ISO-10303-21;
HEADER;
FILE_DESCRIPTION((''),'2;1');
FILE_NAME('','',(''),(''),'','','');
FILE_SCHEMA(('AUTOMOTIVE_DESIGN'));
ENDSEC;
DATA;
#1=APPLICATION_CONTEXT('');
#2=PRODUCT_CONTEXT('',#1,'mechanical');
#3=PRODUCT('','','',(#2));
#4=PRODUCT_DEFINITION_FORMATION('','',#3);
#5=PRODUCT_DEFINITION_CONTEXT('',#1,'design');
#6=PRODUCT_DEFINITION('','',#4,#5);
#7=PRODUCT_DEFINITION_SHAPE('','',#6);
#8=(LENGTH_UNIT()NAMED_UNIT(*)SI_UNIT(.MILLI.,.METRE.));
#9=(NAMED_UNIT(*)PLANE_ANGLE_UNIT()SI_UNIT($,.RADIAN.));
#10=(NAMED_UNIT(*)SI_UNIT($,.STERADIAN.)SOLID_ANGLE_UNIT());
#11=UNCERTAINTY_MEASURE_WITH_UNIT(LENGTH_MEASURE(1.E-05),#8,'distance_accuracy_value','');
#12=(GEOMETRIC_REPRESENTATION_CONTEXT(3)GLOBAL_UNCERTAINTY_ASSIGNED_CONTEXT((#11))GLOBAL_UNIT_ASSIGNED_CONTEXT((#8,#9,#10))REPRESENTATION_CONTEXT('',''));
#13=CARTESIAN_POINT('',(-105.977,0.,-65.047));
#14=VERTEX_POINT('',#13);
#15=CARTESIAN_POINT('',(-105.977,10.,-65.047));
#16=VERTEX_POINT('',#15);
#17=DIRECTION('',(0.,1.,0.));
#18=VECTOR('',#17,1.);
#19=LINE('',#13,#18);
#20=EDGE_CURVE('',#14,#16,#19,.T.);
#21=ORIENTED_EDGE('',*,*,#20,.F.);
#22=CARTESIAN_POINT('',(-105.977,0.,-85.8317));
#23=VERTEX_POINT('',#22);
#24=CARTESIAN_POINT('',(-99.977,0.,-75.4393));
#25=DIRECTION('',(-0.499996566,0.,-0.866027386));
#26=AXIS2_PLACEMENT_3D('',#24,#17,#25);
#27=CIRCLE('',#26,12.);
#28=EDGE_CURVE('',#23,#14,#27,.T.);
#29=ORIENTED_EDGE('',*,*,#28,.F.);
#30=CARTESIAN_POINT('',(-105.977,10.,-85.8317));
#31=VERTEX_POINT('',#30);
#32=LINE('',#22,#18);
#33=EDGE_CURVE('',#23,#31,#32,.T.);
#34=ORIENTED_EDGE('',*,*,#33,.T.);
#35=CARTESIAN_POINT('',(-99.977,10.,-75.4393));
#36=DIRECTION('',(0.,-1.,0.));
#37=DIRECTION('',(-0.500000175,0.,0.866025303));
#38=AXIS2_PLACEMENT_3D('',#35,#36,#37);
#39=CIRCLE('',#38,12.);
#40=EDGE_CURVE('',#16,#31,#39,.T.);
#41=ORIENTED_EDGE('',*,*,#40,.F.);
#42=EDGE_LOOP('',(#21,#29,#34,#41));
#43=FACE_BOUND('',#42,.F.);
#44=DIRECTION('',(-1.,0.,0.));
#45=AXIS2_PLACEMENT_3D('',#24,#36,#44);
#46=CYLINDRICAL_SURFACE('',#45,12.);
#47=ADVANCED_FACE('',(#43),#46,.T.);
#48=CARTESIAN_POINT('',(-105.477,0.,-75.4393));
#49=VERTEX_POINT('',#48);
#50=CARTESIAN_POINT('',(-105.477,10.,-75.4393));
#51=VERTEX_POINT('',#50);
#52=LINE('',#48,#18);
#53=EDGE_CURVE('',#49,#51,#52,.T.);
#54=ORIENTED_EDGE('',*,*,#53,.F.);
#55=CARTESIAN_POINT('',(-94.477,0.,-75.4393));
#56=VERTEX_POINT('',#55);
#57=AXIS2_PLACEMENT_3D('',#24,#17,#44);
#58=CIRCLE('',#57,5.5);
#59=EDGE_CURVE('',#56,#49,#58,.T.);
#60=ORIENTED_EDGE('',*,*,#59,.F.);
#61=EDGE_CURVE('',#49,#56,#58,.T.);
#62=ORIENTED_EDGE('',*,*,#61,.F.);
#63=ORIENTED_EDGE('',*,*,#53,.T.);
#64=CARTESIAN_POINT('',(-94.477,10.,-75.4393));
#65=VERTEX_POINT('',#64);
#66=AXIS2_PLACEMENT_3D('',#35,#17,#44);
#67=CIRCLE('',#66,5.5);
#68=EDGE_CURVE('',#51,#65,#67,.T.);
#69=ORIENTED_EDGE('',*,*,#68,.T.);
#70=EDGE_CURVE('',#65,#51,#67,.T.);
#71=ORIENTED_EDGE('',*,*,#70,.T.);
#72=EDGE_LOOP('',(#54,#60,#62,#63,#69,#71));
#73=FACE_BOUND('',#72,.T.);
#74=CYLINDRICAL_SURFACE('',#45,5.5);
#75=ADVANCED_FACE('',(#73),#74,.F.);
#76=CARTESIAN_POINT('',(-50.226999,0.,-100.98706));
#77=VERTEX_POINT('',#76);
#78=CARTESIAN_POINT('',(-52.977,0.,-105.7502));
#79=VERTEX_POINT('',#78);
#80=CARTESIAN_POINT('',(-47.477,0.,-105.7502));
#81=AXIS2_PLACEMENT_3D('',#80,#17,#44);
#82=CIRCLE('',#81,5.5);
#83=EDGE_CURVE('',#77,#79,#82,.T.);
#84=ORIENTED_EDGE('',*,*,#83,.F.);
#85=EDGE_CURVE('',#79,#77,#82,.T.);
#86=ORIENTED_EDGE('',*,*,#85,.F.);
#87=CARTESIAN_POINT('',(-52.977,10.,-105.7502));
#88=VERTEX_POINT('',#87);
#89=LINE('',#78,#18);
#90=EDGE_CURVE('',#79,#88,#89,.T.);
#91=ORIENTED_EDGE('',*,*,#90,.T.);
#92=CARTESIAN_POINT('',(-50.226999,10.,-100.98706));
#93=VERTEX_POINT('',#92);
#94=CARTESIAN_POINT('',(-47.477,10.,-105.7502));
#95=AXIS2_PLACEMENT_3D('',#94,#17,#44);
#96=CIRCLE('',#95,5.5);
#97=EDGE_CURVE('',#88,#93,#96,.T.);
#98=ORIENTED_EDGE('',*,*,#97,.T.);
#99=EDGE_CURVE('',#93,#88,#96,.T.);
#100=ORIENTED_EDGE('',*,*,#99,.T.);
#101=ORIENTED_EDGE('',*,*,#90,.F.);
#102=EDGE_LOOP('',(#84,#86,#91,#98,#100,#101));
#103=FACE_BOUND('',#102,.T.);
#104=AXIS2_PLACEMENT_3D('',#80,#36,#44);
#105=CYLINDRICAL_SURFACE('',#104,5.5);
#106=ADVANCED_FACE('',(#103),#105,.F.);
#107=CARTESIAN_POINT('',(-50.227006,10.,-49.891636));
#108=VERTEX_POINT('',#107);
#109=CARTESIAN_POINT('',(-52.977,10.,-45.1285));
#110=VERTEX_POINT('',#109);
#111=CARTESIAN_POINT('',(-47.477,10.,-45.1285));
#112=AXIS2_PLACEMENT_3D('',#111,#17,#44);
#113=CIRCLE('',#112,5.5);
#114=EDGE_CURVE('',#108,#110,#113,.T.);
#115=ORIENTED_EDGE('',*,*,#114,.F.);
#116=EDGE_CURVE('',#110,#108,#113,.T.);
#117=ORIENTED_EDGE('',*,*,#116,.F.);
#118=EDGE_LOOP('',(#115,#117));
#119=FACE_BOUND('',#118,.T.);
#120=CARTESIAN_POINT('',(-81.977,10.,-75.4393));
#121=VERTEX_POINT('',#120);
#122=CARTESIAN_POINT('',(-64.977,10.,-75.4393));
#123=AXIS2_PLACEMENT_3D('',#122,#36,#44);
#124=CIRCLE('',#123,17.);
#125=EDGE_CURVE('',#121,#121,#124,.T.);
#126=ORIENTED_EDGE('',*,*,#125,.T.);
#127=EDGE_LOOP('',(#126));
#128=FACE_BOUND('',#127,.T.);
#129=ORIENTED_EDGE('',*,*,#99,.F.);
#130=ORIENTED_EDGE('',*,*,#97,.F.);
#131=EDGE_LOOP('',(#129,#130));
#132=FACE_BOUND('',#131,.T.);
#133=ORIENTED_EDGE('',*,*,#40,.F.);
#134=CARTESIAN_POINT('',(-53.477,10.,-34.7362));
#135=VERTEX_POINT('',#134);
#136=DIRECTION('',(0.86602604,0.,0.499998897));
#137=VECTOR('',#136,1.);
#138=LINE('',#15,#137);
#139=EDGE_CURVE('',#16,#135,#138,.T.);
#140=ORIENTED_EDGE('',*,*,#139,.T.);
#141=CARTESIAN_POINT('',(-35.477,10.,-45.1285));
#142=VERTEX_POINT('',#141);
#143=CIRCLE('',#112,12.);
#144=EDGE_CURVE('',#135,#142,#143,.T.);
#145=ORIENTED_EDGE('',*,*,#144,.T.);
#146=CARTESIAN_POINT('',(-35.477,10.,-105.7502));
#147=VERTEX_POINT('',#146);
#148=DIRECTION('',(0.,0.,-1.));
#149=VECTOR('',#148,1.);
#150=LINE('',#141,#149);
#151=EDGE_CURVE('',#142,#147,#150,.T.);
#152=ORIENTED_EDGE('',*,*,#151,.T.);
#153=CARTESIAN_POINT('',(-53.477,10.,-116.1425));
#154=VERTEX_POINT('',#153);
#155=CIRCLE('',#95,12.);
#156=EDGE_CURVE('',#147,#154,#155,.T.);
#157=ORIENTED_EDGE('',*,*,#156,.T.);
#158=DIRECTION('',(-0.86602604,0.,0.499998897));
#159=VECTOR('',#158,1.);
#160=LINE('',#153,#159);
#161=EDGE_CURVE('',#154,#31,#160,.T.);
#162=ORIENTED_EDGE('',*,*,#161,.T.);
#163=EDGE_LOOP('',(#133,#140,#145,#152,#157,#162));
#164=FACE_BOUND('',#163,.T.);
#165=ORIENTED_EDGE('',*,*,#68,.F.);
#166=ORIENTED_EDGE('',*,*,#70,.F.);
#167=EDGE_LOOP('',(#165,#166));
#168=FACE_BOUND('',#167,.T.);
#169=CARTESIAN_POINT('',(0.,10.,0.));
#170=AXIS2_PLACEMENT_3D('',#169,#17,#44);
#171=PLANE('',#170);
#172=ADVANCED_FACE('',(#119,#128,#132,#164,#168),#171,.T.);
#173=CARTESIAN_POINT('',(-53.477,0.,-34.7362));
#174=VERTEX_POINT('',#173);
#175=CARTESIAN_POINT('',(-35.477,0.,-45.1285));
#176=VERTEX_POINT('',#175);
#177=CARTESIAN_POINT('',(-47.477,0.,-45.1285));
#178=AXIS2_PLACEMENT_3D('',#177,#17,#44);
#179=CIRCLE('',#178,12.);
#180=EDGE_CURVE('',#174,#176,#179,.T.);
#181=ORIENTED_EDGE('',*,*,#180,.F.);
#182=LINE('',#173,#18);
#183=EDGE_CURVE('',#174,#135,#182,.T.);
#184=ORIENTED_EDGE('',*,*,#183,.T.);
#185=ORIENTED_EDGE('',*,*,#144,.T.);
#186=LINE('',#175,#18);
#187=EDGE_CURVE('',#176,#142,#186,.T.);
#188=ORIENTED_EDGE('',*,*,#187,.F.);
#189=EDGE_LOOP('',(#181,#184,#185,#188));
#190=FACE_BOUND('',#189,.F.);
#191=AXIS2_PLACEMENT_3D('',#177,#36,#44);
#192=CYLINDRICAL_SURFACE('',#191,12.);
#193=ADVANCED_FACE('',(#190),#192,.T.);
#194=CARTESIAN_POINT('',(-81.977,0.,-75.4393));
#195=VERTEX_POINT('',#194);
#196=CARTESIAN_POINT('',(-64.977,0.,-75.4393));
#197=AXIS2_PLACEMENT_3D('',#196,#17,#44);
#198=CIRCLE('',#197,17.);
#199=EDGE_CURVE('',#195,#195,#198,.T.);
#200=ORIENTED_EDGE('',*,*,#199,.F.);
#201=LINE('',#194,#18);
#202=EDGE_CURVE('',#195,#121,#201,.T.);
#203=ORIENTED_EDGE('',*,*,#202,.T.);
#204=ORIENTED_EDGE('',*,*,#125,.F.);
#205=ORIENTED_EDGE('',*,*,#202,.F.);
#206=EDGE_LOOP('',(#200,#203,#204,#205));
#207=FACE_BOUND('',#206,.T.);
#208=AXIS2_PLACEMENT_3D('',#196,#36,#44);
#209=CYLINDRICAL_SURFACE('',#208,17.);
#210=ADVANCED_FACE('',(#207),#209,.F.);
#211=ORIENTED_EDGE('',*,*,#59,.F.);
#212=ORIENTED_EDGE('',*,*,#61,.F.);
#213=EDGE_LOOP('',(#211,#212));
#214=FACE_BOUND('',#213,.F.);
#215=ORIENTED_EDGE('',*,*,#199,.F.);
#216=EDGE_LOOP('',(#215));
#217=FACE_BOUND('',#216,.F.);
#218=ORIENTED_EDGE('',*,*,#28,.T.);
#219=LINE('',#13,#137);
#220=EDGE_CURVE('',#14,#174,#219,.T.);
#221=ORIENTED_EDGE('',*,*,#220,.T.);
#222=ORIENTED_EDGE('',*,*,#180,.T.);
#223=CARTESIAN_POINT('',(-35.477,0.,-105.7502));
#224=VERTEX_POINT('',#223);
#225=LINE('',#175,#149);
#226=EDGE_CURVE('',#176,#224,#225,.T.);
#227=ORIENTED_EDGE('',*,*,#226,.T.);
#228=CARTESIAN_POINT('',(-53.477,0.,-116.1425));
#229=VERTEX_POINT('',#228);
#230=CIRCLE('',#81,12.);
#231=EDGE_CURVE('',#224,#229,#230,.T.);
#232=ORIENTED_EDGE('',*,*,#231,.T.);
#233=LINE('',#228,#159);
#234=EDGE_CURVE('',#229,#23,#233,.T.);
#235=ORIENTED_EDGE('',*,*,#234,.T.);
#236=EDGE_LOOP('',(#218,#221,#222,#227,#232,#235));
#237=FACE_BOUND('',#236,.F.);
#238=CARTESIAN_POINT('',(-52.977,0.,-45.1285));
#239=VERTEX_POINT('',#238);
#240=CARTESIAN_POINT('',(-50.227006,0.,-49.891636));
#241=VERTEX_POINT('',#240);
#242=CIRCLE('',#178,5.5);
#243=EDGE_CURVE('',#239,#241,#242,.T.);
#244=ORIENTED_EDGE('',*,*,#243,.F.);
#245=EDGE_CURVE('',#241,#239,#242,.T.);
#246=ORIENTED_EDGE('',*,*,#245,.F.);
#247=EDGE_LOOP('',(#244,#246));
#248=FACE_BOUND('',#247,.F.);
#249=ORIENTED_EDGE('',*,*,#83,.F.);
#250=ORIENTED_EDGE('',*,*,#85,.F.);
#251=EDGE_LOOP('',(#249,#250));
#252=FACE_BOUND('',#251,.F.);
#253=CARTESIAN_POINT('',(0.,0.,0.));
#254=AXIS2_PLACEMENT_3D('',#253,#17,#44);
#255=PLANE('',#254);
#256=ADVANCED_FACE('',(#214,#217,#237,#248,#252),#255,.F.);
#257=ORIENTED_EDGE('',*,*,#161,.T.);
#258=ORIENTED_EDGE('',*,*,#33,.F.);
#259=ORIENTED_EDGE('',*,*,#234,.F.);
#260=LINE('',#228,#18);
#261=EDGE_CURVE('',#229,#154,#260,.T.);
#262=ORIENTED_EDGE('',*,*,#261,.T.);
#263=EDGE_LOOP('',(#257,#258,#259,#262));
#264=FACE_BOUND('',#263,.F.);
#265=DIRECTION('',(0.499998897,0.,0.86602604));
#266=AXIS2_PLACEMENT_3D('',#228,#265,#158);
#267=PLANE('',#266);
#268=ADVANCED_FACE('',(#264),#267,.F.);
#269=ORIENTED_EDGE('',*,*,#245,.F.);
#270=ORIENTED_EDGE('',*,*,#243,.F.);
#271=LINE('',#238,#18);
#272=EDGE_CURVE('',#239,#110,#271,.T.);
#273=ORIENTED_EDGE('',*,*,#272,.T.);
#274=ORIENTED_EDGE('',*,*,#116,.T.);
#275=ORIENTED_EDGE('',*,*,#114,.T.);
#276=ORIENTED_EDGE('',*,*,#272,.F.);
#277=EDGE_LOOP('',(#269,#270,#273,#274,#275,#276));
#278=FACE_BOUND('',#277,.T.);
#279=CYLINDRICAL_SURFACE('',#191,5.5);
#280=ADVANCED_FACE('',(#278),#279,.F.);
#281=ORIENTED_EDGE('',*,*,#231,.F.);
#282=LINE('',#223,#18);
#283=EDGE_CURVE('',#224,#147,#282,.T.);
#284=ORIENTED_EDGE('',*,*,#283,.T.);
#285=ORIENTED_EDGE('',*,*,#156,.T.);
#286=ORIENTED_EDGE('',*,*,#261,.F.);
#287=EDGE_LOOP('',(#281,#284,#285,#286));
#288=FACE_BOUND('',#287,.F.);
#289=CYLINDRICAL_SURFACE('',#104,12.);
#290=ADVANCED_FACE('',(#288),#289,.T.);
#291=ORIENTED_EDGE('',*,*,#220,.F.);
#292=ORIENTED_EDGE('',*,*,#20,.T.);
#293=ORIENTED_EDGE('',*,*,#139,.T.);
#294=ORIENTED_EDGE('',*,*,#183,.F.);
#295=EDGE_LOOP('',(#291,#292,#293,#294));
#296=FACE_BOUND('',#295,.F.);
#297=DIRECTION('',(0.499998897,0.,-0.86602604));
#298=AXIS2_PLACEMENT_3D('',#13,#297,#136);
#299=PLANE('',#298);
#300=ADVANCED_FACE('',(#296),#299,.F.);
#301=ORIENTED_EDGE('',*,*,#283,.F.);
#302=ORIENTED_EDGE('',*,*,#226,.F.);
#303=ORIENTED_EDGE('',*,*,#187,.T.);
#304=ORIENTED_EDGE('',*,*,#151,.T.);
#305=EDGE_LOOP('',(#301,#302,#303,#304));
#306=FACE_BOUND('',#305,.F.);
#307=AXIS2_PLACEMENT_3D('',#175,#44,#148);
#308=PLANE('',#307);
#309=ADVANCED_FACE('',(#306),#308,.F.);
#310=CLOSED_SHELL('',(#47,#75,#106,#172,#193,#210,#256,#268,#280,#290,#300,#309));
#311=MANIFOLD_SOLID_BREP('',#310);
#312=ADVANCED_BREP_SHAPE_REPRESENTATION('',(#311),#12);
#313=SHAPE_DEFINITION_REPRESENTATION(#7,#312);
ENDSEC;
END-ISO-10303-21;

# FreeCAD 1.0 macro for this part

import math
import FreeCAD as App
import Part
import Sketcher

V = App.Vector
Q = App.Units.Quantity

doc = App.newDocument("Part")
body = doc.addObject("PartDesign::Body", "Body")

sketch1 = body.newObject("Sketcher::SketchObject", "Sketch")
sketch1.AttachmentSupport = (doc.getObject("XZ_Plane"), [""])
sketch1.MapMode = "FlatFace"
sketch1.addGeometry(Part.LineSegment(V(-53, -116, 0), V(-106, -86, 0)), False)
sketch1.addGeometry(Part.ArcOfCircle(Part.Circle(V(-100, -75, 0), V(0, 0, 1), 12), math.radians(120), math.radians(240)), False)
sketch1.addGeometry(Part.LineSegment(V(-106, -65, 0), V(-53, -35, 0)), False)
sketch1.addGeometry(Part.ArcOfCircle(Part.Circle(V(-47, -45, 0), V(0, 0, 1), 12), math.radians(0), math.radians(120)), False)
sketch1.addGeometry(Part.LineSegment(V(-35, -45, 0), V(-35, -106, 0)), False)
sketch1.addGeometry(Part.ArcOfCircle(Part.Circle(V(-47, -106, 0), V(0, 0, 1), 12), math.radians(-120), math.radians(0)), False)
sketch1.addGeometry(Part.Circle(V(-65, -75, 0), V(0, 0, 1), 17), False)
sketch1.addGeometry(Part.Circle(V(-100, -75, 0), V(0, 0, 1), 6), False)
sketch1.addGeometry(Part.Circle(V(-47, -106, 0), V(0, 0, 1), 6), False)
sketch1.addGeometry(Part.Circle(V(-47, -45, 0), V(0, 0, 1), 6), False)
sketch1.addConstraint(Sketcher.Constraint("Tangent", 0, 2, 1, 2))
sketch1.addConstraint(Sketcher.Constraint("Tangent", 1, 1, 2, 1))
sketch1.addConstraint(Sketcher.Constraint("Tangent", 2, 2, 3, 2))
sketch1.addConstraint(Sketcher.Constraint("Tangent", 3, 1, 4, 1))
sketch1.addConstraint(Sketcher.Constraint("Tangent", 4, 2, 5, 2))
sketch1.addConstraint(Sketcher.Constraint("Tangent", 5, 1, 0, 1))
sketch1.addConstraint(Sketcher.Constraint("Vertical", 4))
sketch1.addConstraint(Sketcher.Constraint("Coincident", 7, 3, 1, 3))
sketch1.addConstraint(Sketcher.Constraint("Coincident", 8, 3, 5, 3))
sketch1.addConstraint(Sketcher.Constraint("Coincident", 9, 3, 3, 3))
sketch1.addConstraint(Sketcher.Constraint("Equal", 1, 3))
sketch1.addConstraint(Sketcher.Constraint("Equal", 3, 5))
sketch1.addConstraint(Sketcher.Constraint("Equal", 7, 8))
sketch1.addConstraint(Sketcher.Constraint("Equal", 8, 9))
sketch1.addConstraint(Sketcher.Constraint("Horizontal", 1, 3, 6, 3))
sketch1.addConstraint(Sketcher.Constraint("Vertical", 0, 2, 1, 1))
sketch1.addConstraint(Sketcher.Constraint("Diameter", 6, Q("34 mm")))
sketch1.addConstraint(Sketcher.Constraint("Diameter", 7, Q("11 mm")))
sketch1.addConstraint(Sketcher.Constraint("Radius", 1, Q("12 mm")))
sketch1.addConstraint(Sketcher.Constraint("DistanceX", 1, 3, 6, 3, Q("35 mm")))
sketch1.addConstraint(Sketcher.Constraint("Angle", 0, Q("150 deg")))
sketch1.addConstraint(Sketcher.Constraint("DistanceX", 1, 3, 3, 3, Q("52.5 mm")))
sketch1.addConstraint(Sketcher.Constraint("DistanceX", 1, 3, -1, 1, Q("99.977 mm")))
sketch1.addConstraint(Sketcher.Constraint("DistanceY", 1, 1, -1, 1, Q("65.047 mm")))
pad1 = body.newObject("PartDesign::Pad", "Pad")
pad1.Profile = sketch1
pad1.Length = 10
pad1.Reversed = True

doc.recompute()
